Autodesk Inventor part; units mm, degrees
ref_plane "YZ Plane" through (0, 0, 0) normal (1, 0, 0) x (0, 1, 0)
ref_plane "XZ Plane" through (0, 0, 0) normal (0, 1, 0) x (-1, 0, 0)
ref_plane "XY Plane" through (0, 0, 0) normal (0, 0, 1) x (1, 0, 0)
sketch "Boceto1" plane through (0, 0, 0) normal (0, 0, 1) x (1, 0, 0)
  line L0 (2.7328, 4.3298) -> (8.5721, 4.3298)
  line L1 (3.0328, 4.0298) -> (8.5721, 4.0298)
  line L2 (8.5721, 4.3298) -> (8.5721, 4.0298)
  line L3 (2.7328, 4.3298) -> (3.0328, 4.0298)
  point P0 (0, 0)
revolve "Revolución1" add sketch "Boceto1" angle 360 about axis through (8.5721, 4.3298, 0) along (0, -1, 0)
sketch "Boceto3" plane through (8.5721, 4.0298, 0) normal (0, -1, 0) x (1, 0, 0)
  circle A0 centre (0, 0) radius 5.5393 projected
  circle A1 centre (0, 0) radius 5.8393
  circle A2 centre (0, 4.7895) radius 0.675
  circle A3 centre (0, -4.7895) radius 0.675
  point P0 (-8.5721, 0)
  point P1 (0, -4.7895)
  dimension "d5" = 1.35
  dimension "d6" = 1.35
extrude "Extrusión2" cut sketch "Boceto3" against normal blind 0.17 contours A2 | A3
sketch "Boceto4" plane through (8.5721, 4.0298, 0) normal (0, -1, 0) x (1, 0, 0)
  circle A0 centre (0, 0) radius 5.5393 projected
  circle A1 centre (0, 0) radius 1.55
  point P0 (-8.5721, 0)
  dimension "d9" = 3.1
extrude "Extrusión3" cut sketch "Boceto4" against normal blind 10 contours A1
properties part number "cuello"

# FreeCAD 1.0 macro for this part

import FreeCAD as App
import Part
import Sketcher
from FreeCAD import Vector
Q = App.Units.Quantity


def add_polygon(sketch, points):
    """Adds a closed chain of lines whose ends are joined by coincident constraints."""
    first, n = sketch.GeometryCount, len(points)
    for a, b in zip(points, points[1:] + points[:1]):
        sketch.addGeometry(Part.LineSegment(App.Vector(*a, 0), App.Vector(*b, 0)), False)
    for i in range(n):
        sketch.addConstraint(Sketcher.Constraint("Coincident", first + i, 2, first + (i + 1) % n, 1))

doc = App.newDocument("Part")
params = doc.addObject("Spreadsheet::Sheet", "Params")
for row, (alias, value) in enumerate([
    ("sketch1_height", "0.3 mm"),
    ("revolution_angle", "360 deg"),
    ("sketch2_diameter", "1.35 mm"),
    ("pocket1_length", "0.17 mm"),
    ("sketch3_diameter", "3.1 mm"),
    ("pocket2_length", "10 mm"),
], start=1):
    params.set(f"A{row}", alias)
    params.set(f"B{row}", "=" + value)
    params.setAlias(f"B{row}", alias)

body = doc.addObject("PartDesign::Body", "Body")

sketch1 = body.newObject("Sketcher::SketchObject", "Sketch")
sketch1.AttachmentSupport = (doc.getObject("XY_Plane"), [""])
sketch1.MapMode = "FlatFace"
add_polygon(sketch1, [(8.57, 4.33), (2.73, 4.33), (3.03, 4.03), (8.57, 4.03)])
sketch1.addGeometry(Part.LineSegment(Vector(8.57, 4.33, 0), Vector(8.57, 4.03, 0)), True)
sketch1.addConstraint([
    Sketcher.Constraint("Horizontal", 0),
    Sketcher.Constraint("Horizontal", 2),
    Sketcher.Constraint("Vertical", 3),
    Sketcher.Constraint("Vertical", 4),
    Sketcher.Constraint("Coincident", 4, 1, 3, 2),
    Sketcher.Constraint("Horizontal", 1, 2, 4, 2),
    Sketcher.Constraint("Angle", 1, Q("-45 deg")),
    Sketcher.Constraint("DistanceY", 3, 1, 3, 2, Q("0.3 mm")),
    Sketcher.Constraint("DistanceX", 0, 2, 0, 1, Q("5.8393 mm")),
    Sketcher.Constraint("DistanceX", -1, 1, 2, 2, Q("8.572 mm")),
    Sketcher.Constraint("DistanceY", -1, 1, 0, 2, Q("4.3298 mm")),
])
sketch1.setExpression("Constraints[11]", "Params.sketch1_height")
revolution = body.newObject("PartDesign::Revolution", "Revolution")
revolution.Profile = sketch1
revolution.ReferenceAxis = (sketch1, ["Axis0"])
revolution.setExpression("Angle", "Params.revolution_angle")

sketch2 = body.newObject("Sketcher::SketchObject", "Sketch001")
sketch2.AttachmentSupport = (doc.getObject("XZ_Plane"), [""])
sketch2.MapMode = "FlatFace"
sketch2.AttachmentOffset = App.Placement(Vector(0, 0, -4.0298), App.Rotation())
sketch2.addGeometry([
    Part.Circle(Vector(8.6, 4.8, 0), Vector(0, 0, 1), 0.7),
    Part.Circle(Vector(8.6, -4.8, 0), Vector(0, 0, 1), 0.7),
], False)
sketch2.addConstraint([
    Sketcher.Constraint("Equal", 0, 1),
    Sketcher.Constraint("Symmetric", 0, 3, 1, 3, -1),
    Sketcher.Constraint("Diameter", 0, Q("1.35 mm")),
    Sketcher.Constraint("DistanceX", -1, 1, 0, 3, Q("8.572 mm")),
    Sketcher.Constraint("DistanceY", 1, 3, 0, 3, Q("9.579 mm")),
])
sketch2.setExpression("Constraints[2]", "Params.sketch2_diameter")
pocket1 = body.newObject("PartDesign::Pocket", "Pocket")
pocket1.Profile = sketch2
pocket1.setExpression("Length", "Params.pocket1_length")

sketch3 = body.newObject("Sketcher::SketchObject", "Sketch002")
sketch3.AttachmentSupport = (doc.getObject("XZ_Plane"), [""])
sketch3.MapMode = "FlatFace"
sketch3.AttachmentOffset = App.Placement(Vector(0, 0, -4.0298), App.Rotation())
sketch3.addGeometry(Part.Circle(Vector(8.6, 0, 0), Vector(0, 0, 1), 1.6), False)
sketch3.addConstraint([
    Sketcher.Constraint("PointOnObject", 0, 3, -1),
    Sketcher.Constraint("Diameter", 0, Q("3.1 mm")),
    Sketcher.Constraint("DistanceX", -1, 1, 0, 3, Q("8.572 mm")),
])
sketch3.setExpression("Constraints[1]", "Params.sketch3_diameter")
pocket2 = body.newObject("PartDesign::Pocket", "Pocket001")
pocket2.Profile = sketch3
pocket2.setExpression("Length", "Params.pocket2_length")

doc.recompute()
